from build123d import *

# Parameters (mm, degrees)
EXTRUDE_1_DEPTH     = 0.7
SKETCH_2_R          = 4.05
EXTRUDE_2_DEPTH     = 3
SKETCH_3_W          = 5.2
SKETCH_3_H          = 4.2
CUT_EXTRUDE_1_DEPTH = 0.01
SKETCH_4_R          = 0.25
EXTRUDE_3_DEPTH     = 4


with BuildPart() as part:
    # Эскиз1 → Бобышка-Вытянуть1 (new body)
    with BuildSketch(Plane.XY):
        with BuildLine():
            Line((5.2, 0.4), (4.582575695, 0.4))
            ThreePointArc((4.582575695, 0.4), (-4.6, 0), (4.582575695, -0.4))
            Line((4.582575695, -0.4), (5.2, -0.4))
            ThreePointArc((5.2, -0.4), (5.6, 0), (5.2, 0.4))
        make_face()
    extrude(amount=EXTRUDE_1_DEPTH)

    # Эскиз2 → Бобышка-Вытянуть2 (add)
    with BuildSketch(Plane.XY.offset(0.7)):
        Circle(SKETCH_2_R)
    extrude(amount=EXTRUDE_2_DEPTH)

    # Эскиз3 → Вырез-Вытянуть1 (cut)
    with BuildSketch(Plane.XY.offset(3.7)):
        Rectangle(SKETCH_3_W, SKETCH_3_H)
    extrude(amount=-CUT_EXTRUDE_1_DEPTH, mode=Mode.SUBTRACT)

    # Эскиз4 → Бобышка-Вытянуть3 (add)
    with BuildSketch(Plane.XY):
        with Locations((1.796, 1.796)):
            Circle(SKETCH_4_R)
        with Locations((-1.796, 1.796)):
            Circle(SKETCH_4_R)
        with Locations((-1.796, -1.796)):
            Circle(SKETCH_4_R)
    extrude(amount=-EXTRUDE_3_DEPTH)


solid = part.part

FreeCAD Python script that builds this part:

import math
import FreeCAD as App
import Part
import Sketcher
Q = App.Units.Quantity


def add_polygon(sketch, points):
    """Adds a closed chain of lines whose ends are joined by coincident constraints."""
    first, n = sketch.GeometryCount, len(points)
    for a, b in zip(points, points[1:] + points[:1]):
        sketch.addGeometry(Part.LineSegment(App.Vector(*a, 0), App.Vector(*b, 0)), False)
    for i in range(n):
        sketch.addConstraint(Sketcher.Constraint("Coincident", first + i, 2, first + (i + 1) % n, 1))

doc = App.newDocument("Part")
body = doc.addObject("PartDesign::Body", "Body")

# Sketch on XY plane
sketch1 = doc.addObject("Sketcher::SketchObject", "Sketch")
body.addObject(sketch1)
sketch1.AttachmentSupport = (doc.XY_Plane, [""])
sketch1.MapMode = "FlatFace"
sketch1.addGeometry([
    Part.LineSegment(App.Vector(5.2, 0.4, 0), App.Vector(4.58, 0.4, 0)),
    Part.ArcOfCircle(Part.Circle(App.Vector(0, 0, 0), App.Vector(0, 0, 1), 4.6), math.radians(5), math.radians(355)),
    Part.LineSegment(App.Vector(4.58, -0.4, 0), App.Vector(5.2, -0.4, 0)),
    Part.ArcOfCircle(Part.Circle(App.Vector(5.2, 0, 0), App.Vector(0, 0, 1), 0.4), math.radians(-90), math.radians(90)),
], False)
sketch1.addConstraint([
    Sketcher.Constraint("Coincident", 0, 2, 1, 1),
    Sketcher.Constraint("Coincident", 1, 2, 2, 1),
    Sketcher.Constraint("Tangent", 2, 2, 3, 1),
    Sketcher.Constraint("Tangent", 3, 2, 0, 1),
    Sketcher.Constraint("Horizontal", 0),
    Sketcher.Constraint("Horizontal", 2),
    Sketcher.Constraint("Coincident", 1, 3, -1, 1),
    Sketcher.Constraint("PointOnObject", 3, 3, -1),
    Sketcher.Constraint("Radius", 1, Q("4.6 mm")),
    Sketcher.Constraint("Radius", 3, Q("0.4 mm")),
    Sketcher.Constraint("DistanceX", -1, 1, 3, 3, Q("5.2 mm")),
])
pad1 = doc.addObject("PartDesign::Pad", "Pad")
body.addObject(pad1)
pad1.Profile = sketch1
pad1.Length = 0.7

# Sketch on XY plane
sketch2 = doc.addObject("Sketcher::SketchObject", "Sketch001")
body.addObject(sketch2)
sketch2.AttachmentSupport = (doc.XY_Plane, [""])
sketch2.MapMode = "FlatFace"
sketch2.AttachmentOffset = App.Placement(App.Vector(0, 0, 0.7), App.Rotation())
sketch2.addGeometry(Part.Circle(App.Vector(0, 0, 0), App.Vector(0, 0, 1), 4), False)
sketch2.addConstraint([
    Sketcher.Constraint("Coincident", 0, 3, -1, 1),
    Sketcher.Constraint("Diameter", 0, Q("8.1 mm")),
])
pad2 = doc.addObject("PartDesign::Pad", "Pad001")
body.addObject(pad2)
pad2.Profile = sketch2
pad2.Length = 3

# Sketch on XY plane
sketch3 = doc.addObject("Sketcher::SketchObject", "Sketch002")
body.addObject(sketch3)
sketch3.AttachmentSupport = (doc.XY_Plane, [""])
sketch3.MapMode = "FlatFace"
sketch3.AttachmentOffset = App.Placement(App.Vector(0, 0, 3.7), App.Rotation())
add_polygon(sketch3, [(-2.6, 2.1), (-2.6, -2.1), (2.6, -2.1), (2.6, 2.1)])  # lines 0-3
sketch3.addConstraint([
    Sketcher.Constraint("Vertical", 0),
    Sketcher.Constraint("Horizontal", 1),
    Sketcher.Constraint("Vertical", 2),
    Sketcher.Constraint("Horizontal", 3),
    Sketcher.Constraint("Symmetric", 0, 2, 2, 2, -1, 1),
    Sketcher.Constraint("DistanceX", 1, 1, 1, 2, Q("5.2 mm")),
    Sketcher.Constraint("DistanceY", 0, 2, 0, 1, Q("4.2 mm")),
])
pocket1 = doc.addObject("PartDesign::Pocket", "Pocket")
body.addObject(pocket1)
pocket1.Profile = sketch3
pocket1.Length = 0.01

# Sketch on XY plane
sketch4 = doc.addObject("Sketcher::SketchObject", "Sketch003")
body.addObject(sketch4)
sketch4.AttachmentSupport = (doc.XY_Plane, [""])
sketch4.MapMode = "FlatFace"
sketch4.addGeometry([
    Part.Circle(App.Vector(1.8, 1.8, 0), App.Vector(0, 0, 1), 0.25),
    Part.Circle(App.Vector(-1.8, 1.8, 0), App.Vector(0, 0, 1), 0.25),
    Part.Circle(App.Vector(-1.8, -1.8, 0), App.Vector(0, 0, 1), 0.25),
], False)
sketch4.addConstraint([
    Sketcher.Constraint("Equal", 0, 1),
    Sketcher.Constraint("Equal", 1, 2),
    Sketcher.Constraint("Symmetric", 0, 3, 2, 3, -1, 1),
    Sketcher.Constraint("Symmetric", 0, 3, 1, 3, -2),
    Sketcher.Constraint("Diameter", 0, Q("0.5 mm")),
    Sketcher.Constraint("DistanceX", -1, 1, 0, 3, Q("1.796 mm")),
    Sketcher.Constraint("DistanceY", -1, 1, 0, 3, Q("1.796 mm")),
])
pad3 = doc.addObject("PartDesign::Pad", "Pad002")
body.addObject(pad3)
pad3.Profile = sketch4
pad3.Length = 4
pad3.Reversed = True

doc.recompute()
